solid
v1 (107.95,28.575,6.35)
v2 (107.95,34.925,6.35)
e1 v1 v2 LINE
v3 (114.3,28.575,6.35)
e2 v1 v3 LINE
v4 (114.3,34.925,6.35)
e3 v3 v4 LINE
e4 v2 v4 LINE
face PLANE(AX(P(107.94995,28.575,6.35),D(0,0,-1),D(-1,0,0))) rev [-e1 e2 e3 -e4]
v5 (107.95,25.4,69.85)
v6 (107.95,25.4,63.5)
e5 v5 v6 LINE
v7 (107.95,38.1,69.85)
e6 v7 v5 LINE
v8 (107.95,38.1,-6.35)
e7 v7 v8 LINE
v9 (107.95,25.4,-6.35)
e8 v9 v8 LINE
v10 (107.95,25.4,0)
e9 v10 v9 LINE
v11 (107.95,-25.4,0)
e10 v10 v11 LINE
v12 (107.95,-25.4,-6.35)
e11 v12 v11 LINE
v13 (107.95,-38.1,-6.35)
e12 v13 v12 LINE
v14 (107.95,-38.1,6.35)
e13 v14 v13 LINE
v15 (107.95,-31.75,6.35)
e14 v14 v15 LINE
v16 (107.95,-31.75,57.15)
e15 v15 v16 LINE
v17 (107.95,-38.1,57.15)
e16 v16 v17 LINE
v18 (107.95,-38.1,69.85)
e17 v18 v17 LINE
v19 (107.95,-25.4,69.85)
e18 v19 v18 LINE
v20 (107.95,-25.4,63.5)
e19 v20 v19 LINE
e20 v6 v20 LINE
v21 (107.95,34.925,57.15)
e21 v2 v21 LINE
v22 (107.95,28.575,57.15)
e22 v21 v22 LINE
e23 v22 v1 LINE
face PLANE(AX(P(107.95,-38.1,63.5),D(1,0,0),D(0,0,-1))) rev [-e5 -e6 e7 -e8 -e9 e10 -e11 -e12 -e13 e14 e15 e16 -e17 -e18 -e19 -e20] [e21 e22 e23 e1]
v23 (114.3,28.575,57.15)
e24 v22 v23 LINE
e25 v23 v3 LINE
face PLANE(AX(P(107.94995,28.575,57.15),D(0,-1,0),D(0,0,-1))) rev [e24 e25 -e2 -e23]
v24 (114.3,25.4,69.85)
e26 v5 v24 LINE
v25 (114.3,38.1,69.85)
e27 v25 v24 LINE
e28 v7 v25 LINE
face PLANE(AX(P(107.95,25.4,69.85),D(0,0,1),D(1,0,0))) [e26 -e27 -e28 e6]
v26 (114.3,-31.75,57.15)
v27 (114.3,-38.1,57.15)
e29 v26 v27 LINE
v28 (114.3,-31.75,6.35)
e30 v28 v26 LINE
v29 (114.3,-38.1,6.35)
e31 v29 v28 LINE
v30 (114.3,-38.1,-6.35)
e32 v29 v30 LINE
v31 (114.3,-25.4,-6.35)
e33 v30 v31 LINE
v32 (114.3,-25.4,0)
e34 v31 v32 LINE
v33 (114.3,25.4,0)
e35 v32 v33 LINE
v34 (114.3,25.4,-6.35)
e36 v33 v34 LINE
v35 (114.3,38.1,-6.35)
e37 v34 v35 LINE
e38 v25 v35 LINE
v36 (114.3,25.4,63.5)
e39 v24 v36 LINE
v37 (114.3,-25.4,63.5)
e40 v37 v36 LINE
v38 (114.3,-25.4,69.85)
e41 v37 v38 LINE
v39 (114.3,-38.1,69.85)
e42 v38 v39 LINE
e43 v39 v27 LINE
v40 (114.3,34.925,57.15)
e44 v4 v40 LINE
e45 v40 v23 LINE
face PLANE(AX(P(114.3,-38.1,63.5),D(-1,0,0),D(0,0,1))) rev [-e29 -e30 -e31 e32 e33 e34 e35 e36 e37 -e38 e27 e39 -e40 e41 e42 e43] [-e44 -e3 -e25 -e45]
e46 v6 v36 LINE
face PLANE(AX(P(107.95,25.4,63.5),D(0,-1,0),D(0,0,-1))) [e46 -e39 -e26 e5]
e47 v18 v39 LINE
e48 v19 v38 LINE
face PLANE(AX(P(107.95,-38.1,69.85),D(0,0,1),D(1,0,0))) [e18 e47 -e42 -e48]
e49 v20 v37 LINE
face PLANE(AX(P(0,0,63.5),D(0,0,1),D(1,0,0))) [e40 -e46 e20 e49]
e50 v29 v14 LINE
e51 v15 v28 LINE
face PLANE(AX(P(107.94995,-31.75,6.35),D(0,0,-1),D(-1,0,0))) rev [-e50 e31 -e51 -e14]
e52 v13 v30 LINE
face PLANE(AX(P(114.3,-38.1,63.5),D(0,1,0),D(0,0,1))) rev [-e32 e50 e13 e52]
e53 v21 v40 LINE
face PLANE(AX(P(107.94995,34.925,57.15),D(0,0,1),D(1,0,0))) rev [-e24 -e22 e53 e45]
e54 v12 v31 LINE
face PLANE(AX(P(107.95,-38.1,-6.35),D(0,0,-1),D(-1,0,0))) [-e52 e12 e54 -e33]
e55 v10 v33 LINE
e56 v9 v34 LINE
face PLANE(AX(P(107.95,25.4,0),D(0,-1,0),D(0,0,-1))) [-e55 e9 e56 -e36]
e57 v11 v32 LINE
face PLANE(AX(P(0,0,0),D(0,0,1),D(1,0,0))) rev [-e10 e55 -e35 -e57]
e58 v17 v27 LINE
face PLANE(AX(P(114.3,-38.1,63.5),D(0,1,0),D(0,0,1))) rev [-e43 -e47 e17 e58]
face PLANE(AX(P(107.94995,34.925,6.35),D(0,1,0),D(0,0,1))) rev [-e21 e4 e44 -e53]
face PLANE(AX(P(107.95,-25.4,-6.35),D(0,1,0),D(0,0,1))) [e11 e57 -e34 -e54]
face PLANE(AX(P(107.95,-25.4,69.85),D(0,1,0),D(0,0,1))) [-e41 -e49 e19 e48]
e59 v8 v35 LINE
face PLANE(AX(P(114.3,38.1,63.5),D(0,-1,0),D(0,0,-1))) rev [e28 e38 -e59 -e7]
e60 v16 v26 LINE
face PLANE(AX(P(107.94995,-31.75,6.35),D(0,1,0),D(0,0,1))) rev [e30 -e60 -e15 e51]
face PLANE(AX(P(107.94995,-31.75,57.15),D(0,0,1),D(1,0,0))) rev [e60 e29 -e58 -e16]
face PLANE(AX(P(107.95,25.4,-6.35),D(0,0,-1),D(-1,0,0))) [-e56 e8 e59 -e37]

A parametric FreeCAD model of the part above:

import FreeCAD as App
import Part
import Sketcher
from FreeCAD import Vector
Q = App.Units.Quantity


def add_polygon(sketch, points):
    """Adds a closed chain of lines whose ends are joined by coincident constraints."""
    first, n = sketch.GeometryCount, len(points)
    for a, b in zip(points, points[1:] + points[:1]):
        sketch.addGeometry(Part.LineSegment(App.Vector(*a, 0), App.Vector(*b, 0)), False)
    for i in range(n):
        sketch.addConstraint(Sketcher.Constraint("Coincident", first + i, 2, first + (i + 1) % n, 1))

doc = App.newDocument("Part")
params = doc.addObject("Spreadsheet::Sheet", "Params")
for row, (alias, value) in enumerate([
    ("sketch1_height", "3 in"),
    ("sketch1_width", "0.25 in"),
    ("pad1_length", "2.5 in"),
    ("sketch2_width", "0.5 in"),
    ("sketch2_height", "0.25 in"),
    ("pad2_length", "0.25 in"),
    ("sketch3_height", "2 in"),
    ("sketch3_width", "0.25 in"),
], start=1):
    params.set(f"A{row}", alias)
    params.set(f"B{row}", "=" + value)
    params.setAlias(f"B{row}", alias)

body = doc.addObject("PartDesign::Body", "Body")

# Sketch on XY plane
sketch1 = doc.addObject("Sketcher::SketchObject", "Sketch")
body.addObject(sketch1)
sketch1.AttachmentSupport = (doc.XY_Plane, [""])
sketch1.MapMode = "FlatFace"
add_polygon(sketch1, [(108, 38), (108, -38), (114, -38), (114, 38)])  # lines 0-3
sketch1.addConstraint(Sketcher.Constraint("Vertical", 0))
sketch1.addConstraint(Sketcher.Constraint("Horizontal", 1))
sketch1.addConstraint(Sketcher.Constraint("Vertical", 2))
sketch1.addConstraint(Sketcher.Constraint("Horizontal", 3))
sketch1.addConstraint(Sketcher.Constraint("DistanceY", 0, 2, 0, 1, Q("3 in")))
sketch1.addConstraint(Sketcher.Constraint("DistanceX", 1, 1, 1, 2, Q("0.25 in")))
sketch1.addConstraint(Sketcher.Constraint("DistanceY", 0, 2, -1, 1, Q("1.5 in")))
sketch1.addConstraint(Sketcher.Constraint("DistanceX", -1, 1, 1, 2, Q("4.5 in")))
sketch1.setExpression("Constraints[8]", "Params.sketch1_height")
sketch1.setExpression("Constraints[9]", "Params.sketch1_width")
pad1 = doc.addObject("PartDesign::Pad", "Pad")
body.addObject(pad1)
pad1.Profile = sketch1
pad1.setExpression("Length", "Params.pad1_length")

# Sketch on YZ plane
sketch2 = doc.addObject("Sketcher::SketchObject", "Sketch001")
body.addObject(sketch2)
sketch2.AttachmentSupport = (doc.YZ_Plane, [""])
sketch2.MapMode = "FlatFace"
sketch2.AttachmentOffset = App.Placement(Vector(0, 0, 4.5 * 25.4), App.Rotation())
add_polygon(sketch2, [(-25, 70), (-38, 70), (-38, 64), (-25, 64)])  # lines 0-3
add_polygon(sketch2, [(38, 70), (25, 70), (25, 64), (38, 64)])  # lines 4-7
add_polygon(sketch2, [(38, 0), (25, 0), (25, -6), (38, -6)])  # lines 8-11
add_polygon(sketch2, [(-25, 0), (-38, 0), (-38, -6), (-25, -6)])  # lines 12-15
sketch2.addConstraint(Sketcher.Constraint("Horizontal", 0))
sketch2.addConstraint(Sketcher.Constraint("Vertical", 1))
sketch2.addConstraint(Sketcher.Constraint("Horizontal", 2))
sketch2.addConstraint(Sketcher.Constraint("Vertical", 3))
sketch2.addConstraint(Sketcher.Constraint("Horizontal", 4))
sketch2.addConstraint(Sketcher.Constraint("Vertical", 5))
sketch2.addConstraint(Sketcher.Constraint("Horizontal", 6))
sketch2.addConstraint(Sketcher.Constraint("Vertical", 7))
sketch2.addConstraint(Sketcher.Constraint("Horizontal", 8))
sketch2.addConstraint(Sketcher.Constraint("Vertical", 9))
sketch2.addConstraint(Sketcher.Constraint("Horizontal", 10))
sketch2.addConstraint(Sketcher.Constraint("Vertical", 11))
sketch2.addConstraint(Sketcher.Constraint("Horizontal", 12))
sketch2.addConstraint(Sketcher.Constraint("Vertical", 13))
sketch2.addConstraint(Sketcher.Constraint("Horizontal", 14))
sketch2.addConstraint(Sketcher.Constraint("Vertical", 15))
sketch2.addConstraint(Sketcher.Constraint("Symmetric", 11, 2, 12, 2, -1, 1))
sketch2.addConstraint(Sketcher.Constraint("Symmetric", 3, 2, 4, 2, -2))
sketch2.addConstraint(Sketcher.Constraint("Symmetric", 1, 2, 6, 2, -2))
sketch2.addConstraint(Sketcher.Constraint("Symmetric", 9, 2, 14, 2, -2))
sketch2.addConstraint(Sketcher.Constraint("PointOnObject", 8, 2, -1))
sketch2.addConstraint(Sketcher.Constraint("Vertical", 5, 2, 8, 2))
sketch2.addConstraint(Sketcher.Constraint("Vertical", 7, 2, 10, 2))
sketch2.addConstraint(Sketcher.Constraint("Equal", 7, 9))
sketch2.addConstraint(Sketcher.Constraint("DistanceX", 0, 2, 0, 1, Q("0.5 in")))
sketch2.addConstraint(Sketcher.Constraint("DistanceX", 2, 2, -1, 1, Q("1 in")))
sketch2.addConstraint(Sketcher.Constraint("DistanceY", 9, 2, 4, 2, Q("3 in")))
sketch2.addConstraint(Sketcher.Constraint("DistanceY", 1, 2, 1, 1, Q("0.25 in")))
sketch2.setExpression("Constraints[40]", "Params.sketch2_width")
sketch2.setExpression("Constraints[43]", "Params.sketch2_height")
pad2 = doc.addObject("PartDesign::Pad", "Pad001")
body.addObject(pad2)
pad2.Profile = sketch2
pad2.setExpression("Length", "Params.pad2_length")
pad2.Reversed = True

# Sketch on YZ plane
sketch3 = doc.addObject("Sketcher::SketchObject", "Sketch002")
body.addObject(sketch3)
sketch3.AttachmentSupport = (doc.YZ_Plane, [""])
sketch3.MapMode = "FlatFace"
sketch3.AttachmentOffset = App.Placement(Vector(0, 0, 4.5 * 25.4), App.Rotation())
add_polygon(sketch3, [(35, 57), (29, 57), (29, 6), (35, 6)])  # lines 0-3
add_polygon(sketch3, [(-32, 57), (-38, 57), (-38, 6), (-32, 6)])  # lines 4-7
sketch3.addConstraint(Sketcher.Constraint("Horizontal", 0))
sketch3.addConstraint(Sketcher.Constraint("Vertical", 1))
sketch3.addConstraint(Sketcher.Constraint("Horizontal", 2))
sketch3.addConstraint(Sketcher.Constraint("Vertical", 3))
sketch3.addConstraint(Sketcher.Constraint("Horizontal", 4))
sketch3.addConstraint(Sketcher.Constraint("Vertical", 5))
sketch3.addConstraint(Sketcher.Constraint("Horizontal", 6))
sketch3.addConstraint(Sketcher.Constraint("Vertical", 7))
sketch3.addConstraint(Sketcher.Constraint("Horizontal", 3, 2, 4, 2))
sketch3.addConstraint(Sketcher.Constraint("Horizontal", 2, 2, 5, 2))
sketch3.addConstraint(Sketcher.Constraint("Equal", 2, 4))
sketch3.addConstraint(Sketcher.Constraint("DistanceY", 1, 2, 1, 1, Q("2 in")))
sketch3.addConstraint(Sketcher.Constraint("DistanceX", 0, 2, 0, 1, Q("0.25 in")))
sketch3.addConstraint(Sketcher.Constraint("DistanceX", 4, 2, -1, 1, Q("1.5 in")))
sketch3.addConstraint(Sketcher.Constraint("DistanceY", -1, 1, 0, 2, Q("2.25 in")))
sketch3.addConstraint(Sketcher.Constraint("DistanceX", -1, 1, 0, 2, Q("1.125 in")))
sketch3.setExpression("Constraints[19]", "Params.sketch3_height")
sketch3.setExpression("Constraints[20]", "Params.sketch3_width")
pocket1 = doc.addObject("PartDesign::Pocket", "Pocket")
body.addObject(pocket1)
pocket1.Profile = sketch3
pocket1.Type = "ThroughAll"

doc.recompute()
